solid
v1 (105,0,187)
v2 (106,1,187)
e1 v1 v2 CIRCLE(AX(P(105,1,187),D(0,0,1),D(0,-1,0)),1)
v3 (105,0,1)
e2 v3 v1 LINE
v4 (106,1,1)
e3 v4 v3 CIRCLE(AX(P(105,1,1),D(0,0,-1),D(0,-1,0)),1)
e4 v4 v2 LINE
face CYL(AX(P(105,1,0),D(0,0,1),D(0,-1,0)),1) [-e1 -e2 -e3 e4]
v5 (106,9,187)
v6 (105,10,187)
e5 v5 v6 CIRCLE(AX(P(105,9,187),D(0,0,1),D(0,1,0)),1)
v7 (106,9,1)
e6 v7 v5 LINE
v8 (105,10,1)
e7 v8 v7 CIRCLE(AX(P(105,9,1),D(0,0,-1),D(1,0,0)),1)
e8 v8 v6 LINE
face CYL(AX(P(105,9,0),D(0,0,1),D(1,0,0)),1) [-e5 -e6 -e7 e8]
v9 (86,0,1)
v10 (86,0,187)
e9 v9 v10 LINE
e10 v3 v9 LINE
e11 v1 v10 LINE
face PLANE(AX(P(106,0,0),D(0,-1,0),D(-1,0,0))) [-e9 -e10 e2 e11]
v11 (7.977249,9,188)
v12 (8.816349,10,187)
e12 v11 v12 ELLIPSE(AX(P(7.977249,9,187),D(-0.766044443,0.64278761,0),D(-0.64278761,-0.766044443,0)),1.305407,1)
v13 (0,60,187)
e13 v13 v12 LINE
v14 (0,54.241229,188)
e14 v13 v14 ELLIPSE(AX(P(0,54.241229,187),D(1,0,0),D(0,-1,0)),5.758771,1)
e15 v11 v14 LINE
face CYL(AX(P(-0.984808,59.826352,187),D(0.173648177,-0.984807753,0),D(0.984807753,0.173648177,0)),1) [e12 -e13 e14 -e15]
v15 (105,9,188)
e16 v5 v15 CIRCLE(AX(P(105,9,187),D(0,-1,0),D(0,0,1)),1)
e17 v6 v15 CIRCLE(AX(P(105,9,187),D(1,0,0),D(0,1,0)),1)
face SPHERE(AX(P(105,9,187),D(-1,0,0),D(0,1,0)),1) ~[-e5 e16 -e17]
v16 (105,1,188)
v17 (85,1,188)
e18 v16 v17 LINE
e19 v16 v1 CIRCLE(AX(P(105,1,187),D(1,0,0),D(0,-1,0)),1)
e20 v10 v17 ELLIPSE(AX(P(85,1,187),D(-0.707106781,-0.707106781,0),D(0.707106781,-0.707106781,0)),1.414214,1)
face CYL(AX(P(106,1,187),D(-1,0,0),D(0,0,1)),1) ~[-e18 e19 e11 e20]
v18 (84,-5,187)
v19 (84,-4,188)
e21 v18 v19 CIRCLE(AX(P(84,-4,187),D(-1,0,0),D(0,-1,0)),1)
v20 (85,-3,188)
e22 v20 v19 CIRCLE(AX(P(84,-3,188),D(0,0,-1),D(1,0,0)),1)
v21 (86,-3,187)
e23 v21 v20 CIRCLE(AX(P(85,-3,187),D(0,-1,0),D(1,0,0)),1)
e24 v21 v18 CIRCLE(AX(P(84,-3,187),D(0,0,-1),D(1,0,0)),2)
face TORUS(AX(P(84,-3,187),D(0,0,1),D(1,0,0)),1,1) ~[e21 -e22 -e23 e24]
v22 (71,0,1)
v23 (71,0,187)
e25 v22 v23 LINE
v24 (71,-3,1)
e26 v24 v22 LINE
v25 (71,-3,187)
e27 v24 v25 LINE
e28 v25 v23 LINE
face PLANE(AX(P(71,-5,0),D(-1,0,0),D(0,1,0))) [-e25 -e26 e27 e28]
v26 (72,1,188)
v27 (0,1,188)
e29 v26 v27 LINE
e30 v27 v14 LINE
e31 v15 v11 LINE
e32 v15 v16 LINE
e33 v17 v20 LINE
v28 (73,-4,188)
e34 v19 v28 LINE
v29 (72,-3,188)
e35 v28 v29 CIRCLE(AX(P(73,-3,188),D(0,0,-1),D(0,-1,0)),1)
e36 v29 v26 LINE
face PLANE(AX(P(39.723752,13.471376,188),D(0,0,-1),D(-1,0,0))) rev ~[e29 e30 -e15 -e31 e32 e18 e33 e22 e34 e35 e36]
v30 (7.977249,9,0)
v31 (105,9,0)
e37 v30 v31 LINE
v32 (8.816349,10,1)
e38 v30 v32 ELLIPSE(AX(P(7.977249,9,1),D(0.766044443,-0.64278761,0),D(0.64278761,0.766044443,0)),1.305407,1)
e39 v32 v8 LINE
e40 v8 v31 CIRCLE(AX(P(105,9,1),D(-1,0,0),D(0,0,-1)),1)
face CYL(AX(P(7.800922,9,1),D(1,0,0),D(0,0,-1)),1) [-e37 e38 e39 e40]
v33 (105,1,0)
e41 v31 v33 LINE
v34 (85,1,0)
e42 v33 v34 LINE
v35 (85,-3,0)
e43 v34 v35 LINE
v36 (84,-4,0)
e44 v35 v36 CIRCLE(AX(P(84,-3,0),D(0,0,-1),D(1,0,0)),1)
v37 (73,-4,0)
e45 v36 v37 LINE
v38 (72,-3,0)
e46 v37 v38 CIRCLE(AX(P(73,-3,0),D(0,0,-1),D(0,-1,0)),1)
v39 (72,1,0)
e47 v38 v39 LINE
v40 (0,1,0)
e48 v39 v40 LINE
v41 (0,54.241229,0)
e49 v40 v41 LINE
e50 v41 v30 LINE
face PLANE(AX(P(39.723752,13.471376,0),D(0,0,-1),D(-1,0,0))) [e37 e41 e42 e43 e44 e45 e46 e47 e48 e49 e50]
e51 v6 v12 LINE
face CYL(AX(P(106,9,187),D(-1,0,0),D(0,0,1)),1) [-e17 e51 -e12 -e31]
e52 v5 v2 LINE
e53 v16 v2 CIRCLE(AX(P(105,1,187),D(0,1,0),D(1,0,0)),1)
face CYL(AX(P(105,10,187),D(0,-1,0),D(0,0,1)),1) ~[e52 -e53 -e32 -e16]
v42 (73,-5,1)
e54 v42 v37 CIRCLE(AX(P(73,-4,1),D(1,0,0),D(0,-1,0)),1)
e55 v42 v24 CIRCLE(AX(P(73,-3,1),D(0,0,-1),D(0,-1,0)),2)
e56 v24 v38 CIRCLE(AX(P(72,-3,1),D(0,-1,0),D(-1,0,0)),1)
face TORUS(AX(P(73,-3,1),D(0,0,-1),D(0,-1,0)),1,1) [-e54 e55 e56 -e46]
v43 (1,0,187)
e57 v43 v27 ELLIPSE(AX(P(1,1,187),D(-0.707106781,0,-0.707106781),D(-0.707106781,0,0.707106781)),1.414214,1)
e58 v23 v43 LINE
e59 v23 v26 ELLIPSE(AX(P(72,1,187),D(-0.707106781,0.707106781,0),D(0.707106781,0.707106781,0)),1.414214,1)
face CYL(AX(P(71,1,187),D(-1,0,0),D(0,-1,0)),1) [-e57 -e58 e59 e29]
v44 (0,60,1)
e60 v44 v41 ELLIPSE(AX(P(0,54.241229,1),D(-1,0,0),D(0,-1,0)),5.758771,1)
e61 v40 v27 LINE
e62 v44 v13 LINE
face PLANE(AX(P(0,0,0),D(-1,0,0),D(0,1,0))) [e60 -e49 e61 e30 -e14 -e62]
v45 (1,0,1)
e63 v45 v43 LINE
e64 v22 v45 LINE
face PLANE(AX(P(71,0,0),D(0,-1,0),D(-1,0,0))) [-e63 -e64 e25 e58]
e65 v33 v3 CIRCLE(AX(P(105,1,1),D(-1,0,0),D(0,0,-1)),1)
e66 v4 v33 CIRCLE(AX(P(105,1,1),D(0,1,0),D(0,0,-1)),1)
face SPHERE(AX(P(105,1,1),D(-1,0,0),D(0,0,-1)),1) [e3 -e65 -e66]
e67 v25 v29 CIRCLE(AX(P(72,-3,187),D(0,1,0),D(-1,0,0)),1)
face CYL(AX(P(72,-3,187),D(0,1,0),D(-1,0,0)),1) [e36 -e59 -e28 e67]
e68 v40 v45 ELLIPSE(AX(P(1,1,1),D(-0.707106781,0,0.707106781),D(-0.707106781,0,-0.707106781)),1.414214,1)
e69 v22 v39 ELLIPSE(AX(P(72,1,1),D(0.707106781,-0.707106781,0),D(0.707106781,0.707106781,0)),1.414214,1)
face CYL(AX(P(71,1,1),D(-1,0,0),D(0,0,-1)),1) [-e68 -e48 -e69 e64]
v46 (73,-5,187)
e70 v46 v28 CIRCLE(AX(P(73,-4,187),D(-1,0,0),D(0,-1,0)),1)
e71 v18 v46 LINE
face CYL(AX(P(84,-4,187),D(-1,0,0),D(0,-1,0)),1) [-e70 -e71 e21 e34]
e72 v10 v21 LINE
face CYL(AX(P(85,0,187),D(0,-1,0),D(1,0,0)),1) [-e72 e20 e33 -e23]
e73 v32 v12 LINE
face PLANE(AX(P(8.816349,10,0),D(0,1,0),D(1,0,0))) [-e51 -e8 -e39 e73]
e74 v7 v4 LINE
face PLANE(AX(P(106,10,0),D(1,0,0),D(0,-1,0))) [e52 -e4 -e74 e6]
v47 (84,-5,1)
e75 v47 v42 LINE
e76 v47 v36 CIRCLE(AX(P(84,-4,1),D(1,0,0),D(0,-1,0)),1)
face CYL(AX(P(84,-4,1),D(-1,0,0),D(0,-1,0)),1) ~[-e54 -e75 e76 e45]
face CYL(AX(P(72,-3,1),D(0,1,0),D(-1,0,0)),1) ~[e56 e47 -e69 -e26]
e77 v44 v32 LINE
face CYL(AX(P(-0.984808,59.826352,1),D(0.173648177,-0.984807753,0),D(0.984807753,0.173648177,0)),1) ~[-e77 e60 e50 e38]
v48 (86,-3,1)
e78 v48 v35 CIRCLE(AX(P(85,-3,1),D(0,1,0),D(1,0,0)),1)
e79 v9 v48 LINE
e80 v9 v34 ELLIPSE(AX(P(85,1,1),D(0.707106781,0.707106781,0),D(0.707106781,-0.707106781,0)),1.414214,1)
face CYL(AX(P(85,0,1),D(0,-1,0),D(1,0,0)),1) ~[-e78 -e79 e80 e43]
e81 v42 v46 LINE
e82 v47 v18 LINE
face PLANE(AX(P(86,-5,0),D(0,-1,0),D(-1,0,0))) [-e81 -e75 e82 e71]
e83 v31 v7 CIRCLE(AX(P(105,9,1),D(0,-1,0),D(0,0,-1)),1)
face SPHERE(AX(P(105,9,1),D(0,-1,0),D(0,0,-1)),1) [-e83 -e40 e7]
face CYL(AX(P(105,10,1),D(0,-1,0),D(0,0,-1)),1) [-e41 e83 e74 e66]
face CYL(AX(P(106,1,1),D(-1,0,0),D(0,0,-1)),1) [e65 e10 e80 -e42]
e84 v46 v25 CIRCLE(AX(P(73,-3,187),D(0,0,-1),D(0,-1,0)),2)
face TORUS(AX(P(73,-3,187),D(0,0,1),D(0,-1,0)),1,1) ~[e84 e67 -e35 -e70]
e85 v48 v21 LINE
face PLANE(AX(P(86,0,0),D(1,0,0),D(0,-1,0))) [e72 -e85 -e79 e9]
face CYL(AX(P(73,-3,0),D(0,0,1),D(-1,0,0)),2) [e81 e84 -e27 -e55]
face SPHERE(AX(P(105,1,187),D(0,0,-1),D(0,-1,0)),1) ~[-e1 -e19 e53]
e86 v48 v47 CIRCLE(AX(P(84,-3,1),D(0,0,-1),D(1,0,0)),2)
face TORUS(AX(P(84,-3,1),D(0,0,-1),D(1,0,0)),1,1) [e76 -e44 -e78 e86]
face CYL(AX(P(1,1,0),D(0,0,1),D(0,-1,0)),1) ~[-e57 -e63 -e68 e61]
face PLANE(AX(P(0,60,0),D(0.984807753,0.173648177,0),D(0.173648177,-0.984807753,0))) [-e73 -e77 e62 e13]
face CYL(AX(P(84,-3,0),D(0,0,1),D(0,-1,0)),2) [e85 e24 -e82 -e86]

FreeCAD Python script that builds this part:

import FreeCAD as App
import Part
import Sketcher
from FreeCAD import Vector
Q = App.Units.Quantity


def edges_at(feature, points):
    """Names of the edges that pass closest to the given points."""
    edges = feature.Shape.Edges
    near = lambda p: min(range(len(edges)), key=lambda i: edges[i].distToShape(Part.Vertex(*p))[0])
    return sorted({f"Edge{near(p) + 1}" for p in points})


def add_polygon(sketch, points):
    """Adds a closed chain of lines whose ends are joined by coincident constraints."""
    first, n = sketch.GeometryCount, len(points)
    for a, b in zip(points, points[1:] + points[:1]):
        sketch.addGeometry(Part.LineSegment(App.Vector(*a, 0), App.Vector(*b, 0)), False)
    for i in range(n):
        sketch.addConstraint(Sketcher.Constraint("Coincident", first + i, 2, first + (i + 1) % n, 1))

doc = App.newDocument("Part")
body = doc.addObject("PartDesign::Body", "Body")

# Sketch on XY plane
sketch1 = body.newObject("Sketcher::SketchObject", "Sketch")
sketch1.AttachmentSupport = (doc.getObject("XY_Plane"), [""])
sketch1.MapMode = "FlatFace"
add_polygon(sketch1, [(0, 60), (0, 0), (71, 0), (71, -5), (86, -5), (86, 0), (106, 0), (106, 10), (9, 10)])  # lines 0-8
sketch1.addConstraint([
    Sketcher.Constraint("Vertical", 0),
    Sketcher.Constraint("Horizontal", 1),
    Sketcher.Constraint("Vertical", 2),
    Sketcher.Constraint("Horizontal", 3),
    Sketcher.Constraint("Vertical", 4),
    Sketcher.Constraint("Horizontal", 5),
    Sketcher.Constraint("Vertical", 6),
    Sketcher.Constraint("Horizontal", 7),
    Sketcher.Constraint("Coincident", 0, 2, -1, 1),
    Sketcher.Constraint("PointOnObject", 4, 2, -1),
    Sketcher.Constraint("DistanceX", 1, 1, 1, 2, Q("71 mm")),
    Sketcher.Constraint("DistanceX", 3, 1, 3, 2, Q("15 mm")),
    Sketcher.Constraint("DistanceX", 5, 1, 5, 2, Q("20 mm")),
    Sketcher.Constraint("DistanceY", 0, 2, 0, 1, Q("60 mm")),
    Sketcher.Constraint("DistanceY", 2, 2, 2, 1, Q("5 mm")),
    Sketcher.Constraint("DistanceY", 6, 1, 6, 2, Q("10 mm")),
    Sketcher.Constraint("Angle", 8, Q("100 deg")),
])
pad1 = body.newObject("PartDesign::Pad", "Pad")
pad1.Profile = sketch1
pad1.Length = 188
doc.recompute()

fillet = body.newObject("PartDesign::Fillet", "Fillet")
fillet.Base = (pad1, edges_at(pad1, [(4.408, 35, 0), (4.408, 35, 188)]))
fillet.Radius = 1
doc.recompute()

fillet2 = body.newObject("PartDesign::Fillet", "Fillet001")
fillet2.Base = (fillet, edges_at(fillet, [(71, -5, 94), (86, -5, 94)]))
fillet2.Radius = 2
doc.recompute()

fillet3 = body.newObject("PartDesign::Fillet", "Fillet002")
fillet3.Base = (fillet2, edges_at(fillet2, [
    (71, -1.5, 0),
    (78.5, -5, 0),
    (86, -1.5, 0),
    (96, 0, 0),
    (106, 5, 0),
    (56.9, 10, 0),
    (35.5, 0, 0),
    (71, -1.5, 188),
    (35.5, 0, 188),
    (0, 0, 94),
    (78.5, -5, 188),
    (86, -1.5, 188),
    (56.9, 10, 188),
    (106, 10, 94),
    (106, 0, 94),
    (96, 0, 188),
    (106, 5, 188),
]))
fillet3.Radius = 1

doc.recompute()
